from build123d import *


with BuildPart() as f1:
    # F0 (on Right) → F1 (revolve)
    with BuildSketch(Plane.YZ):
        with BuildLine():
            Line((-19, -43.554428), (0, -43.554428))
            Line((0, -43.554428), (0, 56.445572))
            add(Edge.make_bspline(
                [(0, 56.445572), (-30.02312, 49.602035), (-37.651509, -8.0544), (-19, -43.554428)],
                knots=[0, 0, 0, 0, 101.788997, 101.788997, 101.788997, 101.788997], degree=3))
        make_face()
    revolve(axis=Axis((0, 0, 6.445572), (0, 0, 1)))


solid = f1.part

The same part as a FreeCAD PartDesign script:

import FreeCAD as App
import Part
import Sketcher

doc = App.newDocument("Part")
body = doc.addObject("PartDesign::Body", "Body")

sketch1 = doc.addObject("Sketcher::SketchObject", "Sketch")
body.addObject(sketch1)
sketch1.AttachmentSupport = (doc.YZ_Plane, [""])
sketch1.MapMode = "FlatFace"
sketch1.addGeometry([
    Part.LineSegment(App.Vector(-19, -43.554428, 0), App.Vector(0, -43.554428, 0)),
    Part.LineSegment(App.Vector(0, -43.554428, 0), App.Vector(0, 56.445572, 0)),
    Part.BSplineCurve([App.Vector(0, 56.445572, 0), App.Vector(-30.02312, 49.602035, 0), App.Vector(-37.651509, -8.0544, 0), App.Vector(-19, -43.554428, 0)], [4, 4], [0, 101.788997], False, 3, [1, 1, 1, 1], False),
], False)
sketch1.addConstraint([
    Sketcher.Constraint("Block", 2),
    Sketcher.Constraint("Coincident", 0, 2, 1, 1),
    Sketcher.Constraint("Coincident", 1, 2, 2, 1),
    Sketcher.Constraint("Coincident", 2, 2, 0, 1),
    Sketcher.Constraint("Horizontal", 0),
    Sketcher.Constraint("Vertical", 1),
])
revolution = doc.addObject("PartDesign::Revolution", "Revolution")
body.addObject(revolution)
revolution.Profile = sketch1
revolution.ReferenceAxis = (sketch1, ["V_Axis"])
revolution.Angle = 360

doc.recompute()
